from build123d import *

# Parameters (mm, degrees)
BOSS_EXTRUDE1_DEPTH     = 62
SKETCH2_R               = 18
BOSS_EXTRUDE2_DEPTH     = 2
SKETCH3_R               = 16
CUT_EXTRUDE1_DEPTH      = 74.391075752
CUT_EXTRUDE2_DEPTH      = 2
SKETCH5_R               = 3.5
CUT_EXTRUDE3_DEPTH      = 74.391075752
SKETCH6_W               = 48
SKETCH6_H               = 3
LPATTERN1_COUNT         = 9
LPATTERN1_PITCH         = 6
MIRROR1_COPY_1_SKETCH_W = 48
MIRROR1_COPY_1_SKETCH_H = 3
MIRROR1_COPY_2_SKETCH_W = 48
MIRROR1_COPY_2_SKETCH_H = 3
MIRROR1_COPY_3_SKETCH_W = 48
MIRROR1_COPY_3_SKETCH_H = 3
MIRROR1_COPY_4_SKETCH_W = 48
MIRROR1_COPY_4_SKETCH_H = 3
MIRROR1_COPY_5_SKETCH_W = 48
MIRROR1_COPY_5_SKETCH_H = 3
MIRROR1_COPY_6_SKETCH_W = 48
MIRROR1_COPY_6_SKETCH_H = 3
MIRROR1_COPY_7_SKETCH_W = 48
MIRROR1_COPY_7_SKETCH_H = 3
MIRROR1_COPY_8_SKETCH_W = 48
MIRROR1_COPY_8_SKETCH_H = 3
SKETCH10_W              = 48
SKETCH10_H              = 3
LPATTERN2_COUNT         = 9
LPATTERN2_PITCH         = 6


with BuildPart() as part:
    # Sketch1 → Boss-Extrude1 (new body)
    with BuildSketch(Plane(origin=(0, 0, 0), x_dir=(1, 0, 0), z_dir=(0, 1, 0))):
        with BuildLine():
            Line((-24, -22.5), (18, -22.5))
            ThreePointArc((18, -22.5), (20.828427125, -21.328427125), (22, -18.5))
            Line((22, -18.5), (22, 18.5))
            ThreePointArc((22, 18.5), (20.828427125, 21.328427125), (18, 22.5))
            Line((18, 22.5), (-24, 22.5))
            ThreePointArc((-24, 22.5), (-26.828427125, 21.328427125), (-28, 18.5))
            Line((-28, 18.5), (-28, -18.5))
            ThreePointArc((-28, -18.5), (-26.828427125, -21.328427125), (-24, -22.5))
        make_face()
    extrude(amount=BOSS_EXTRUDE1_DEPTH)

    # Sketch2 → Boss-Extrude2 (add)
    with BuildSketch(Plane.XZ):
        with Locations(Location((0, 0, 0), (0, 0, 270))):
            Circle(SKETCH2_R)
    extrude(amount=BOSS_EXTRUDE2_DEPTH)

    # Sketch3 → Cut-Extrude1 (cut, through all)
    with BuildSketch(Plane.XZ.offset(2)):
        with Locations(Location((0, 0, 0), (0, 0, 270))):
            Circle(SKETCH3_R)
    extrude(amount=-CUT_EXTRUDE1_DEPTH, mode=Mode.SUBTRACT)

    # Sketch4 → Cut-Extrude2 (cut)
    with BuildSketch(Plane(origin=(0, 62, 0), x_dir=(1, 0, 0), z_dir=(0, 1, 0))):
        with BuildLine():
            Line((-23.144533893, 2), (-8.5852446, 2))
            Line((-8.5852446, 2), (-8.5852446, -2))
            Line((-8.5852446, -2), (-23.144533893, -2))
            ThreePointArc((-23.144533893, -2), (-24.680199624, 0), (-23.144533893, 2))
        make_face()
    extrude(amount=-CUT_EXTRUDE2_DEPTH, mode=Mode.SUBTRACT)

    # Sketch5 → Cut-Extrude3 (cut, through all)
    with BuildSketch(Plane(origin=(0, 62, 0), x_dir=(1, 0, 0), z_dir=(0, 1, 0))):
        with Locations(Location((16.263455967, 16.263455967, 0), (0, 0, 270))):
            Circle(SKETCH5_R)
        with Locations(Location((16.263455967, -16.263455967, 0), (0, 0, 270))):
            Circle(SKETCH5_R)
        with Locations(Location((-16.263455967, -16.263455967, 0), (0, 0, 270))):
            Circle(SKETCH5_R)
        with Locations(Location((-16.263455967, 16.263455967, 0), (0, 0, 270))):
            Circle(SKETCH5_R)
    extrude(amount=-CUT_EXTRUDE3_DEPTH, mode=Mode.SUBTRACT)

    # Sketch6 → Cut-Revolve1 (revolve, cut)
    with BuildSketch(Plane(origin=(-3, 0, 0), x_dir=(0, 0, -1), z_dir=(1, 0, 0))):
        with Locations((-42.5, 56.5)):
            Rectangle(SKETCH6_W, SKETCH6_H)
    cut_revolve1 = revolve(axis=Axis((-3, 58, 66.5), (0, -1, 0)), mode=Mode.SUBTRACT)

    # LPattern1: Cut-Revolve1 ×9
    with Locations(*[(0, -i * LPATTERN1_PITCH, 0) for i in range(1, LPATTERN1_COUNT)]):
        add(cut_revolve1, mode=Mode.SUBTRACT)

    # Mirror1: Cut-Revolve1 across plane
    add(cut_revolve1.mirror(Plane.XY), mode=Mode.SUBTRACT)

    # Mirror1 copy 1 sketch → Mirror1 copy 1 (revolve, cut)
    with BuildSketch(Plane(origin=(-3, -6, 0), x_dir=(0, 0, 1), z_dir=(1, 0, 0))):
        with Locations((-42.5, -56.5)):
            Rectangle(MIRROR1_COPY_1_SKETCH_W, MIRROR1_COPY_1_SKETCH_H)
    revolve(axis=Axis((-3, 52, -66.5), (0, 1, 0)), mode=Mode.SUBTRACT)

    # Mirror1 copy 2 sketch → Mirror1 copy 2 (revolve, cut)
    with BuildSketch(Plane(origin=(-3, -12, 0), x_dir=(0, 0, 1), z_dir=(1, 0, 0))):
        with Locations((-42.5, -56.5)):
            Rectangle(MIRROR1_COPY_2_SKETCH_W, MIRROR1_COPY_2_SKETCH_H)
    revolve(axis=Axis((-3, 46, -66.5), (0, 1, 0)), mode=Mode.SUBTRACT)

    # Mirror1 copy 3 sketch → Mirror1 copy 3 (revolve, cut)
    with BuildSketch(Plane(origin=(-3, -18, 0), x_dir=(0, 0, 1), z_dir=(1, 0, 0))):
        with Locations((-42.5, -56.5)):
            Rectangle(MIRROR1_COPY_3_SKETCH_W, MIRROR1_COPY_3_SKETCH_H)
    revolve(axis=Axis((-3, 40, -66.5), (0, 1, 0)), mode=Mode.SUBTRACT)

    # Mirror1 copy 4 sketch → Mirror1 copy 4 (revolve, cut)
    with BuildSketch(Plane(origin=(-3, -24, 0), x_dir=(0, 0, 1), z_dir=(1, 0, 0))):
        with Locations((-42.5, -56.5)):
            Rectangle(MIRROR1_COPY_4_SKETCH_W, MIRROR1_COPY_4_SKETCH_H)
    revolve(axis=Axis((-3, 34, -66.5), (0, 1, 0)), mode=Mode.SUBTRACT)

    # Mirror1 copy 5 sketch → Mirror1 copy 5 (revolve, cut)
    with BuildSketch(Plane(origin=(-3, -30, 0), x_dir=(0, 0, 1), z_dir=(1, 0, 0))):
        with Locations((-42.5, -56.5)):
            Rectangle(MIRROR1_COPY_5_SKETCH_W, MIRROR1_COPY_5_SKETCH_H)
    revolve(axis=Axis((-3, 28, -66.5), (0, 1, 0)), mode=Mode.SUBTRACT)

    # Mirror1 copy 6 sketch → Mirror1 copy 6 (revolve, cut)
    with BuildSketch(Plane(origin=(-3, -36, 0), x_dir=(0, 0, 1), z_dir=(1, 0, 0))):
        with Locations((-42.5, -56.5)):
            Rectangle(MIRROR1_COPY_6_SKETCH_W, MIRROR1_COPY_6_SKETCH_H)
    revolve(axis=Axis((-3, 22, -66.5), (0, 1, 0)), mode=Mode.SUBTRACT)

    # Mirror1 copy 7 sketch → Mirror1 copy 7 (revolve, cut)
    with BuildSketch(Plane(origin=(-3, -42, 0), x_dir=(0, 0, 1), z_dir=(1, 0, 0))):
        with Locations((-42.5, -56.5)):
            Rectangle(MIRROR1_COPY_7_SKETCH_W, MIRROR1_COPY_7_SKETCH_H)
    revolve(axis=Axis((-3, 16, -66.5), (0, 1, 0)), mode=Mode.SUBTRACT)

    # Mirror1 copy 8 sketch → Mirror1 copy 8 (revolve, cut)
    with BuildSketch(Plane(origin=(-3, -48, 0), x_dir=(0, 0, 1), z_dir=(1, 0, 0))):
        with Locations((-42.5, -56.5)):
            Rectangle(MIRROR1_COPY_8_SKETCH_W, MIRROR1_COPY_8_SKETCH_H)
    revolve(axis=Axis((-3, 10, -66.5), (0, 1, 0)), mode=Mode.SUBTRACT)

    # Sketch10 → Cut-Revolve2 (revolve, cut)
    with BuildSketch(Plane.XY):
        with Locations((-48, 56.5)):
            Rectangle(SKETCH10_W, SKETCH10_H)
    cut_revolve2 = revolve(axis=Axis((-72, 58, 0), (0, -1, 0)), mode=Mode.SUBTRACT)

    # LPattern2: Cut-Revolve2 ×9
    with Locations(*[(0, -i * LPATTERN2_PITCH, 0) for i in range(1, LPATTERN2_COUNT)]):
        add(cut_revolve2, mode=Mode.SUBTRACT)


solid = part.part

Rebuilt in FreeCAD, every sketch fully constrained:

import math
import FreeCAD as App
import Part
import Sketcher
from FreeCAD import Vector
Q = App.Units.Quantity


def add_polygon(sketch, points):
    """Adds a closed chain of lines whose ends are joined by coincident constraints."""
    first, n = sketch.GeometryCount, len(points)
    for a, b in zip(points, points[1:] + points[:1]):
        sketch.addGeometry(Part.LineSegment(App.Vector(*a, 0), App.Vector(*b, 0)), False)
    for i in range(n):
        sketch.addConstraint(Sketcher.Constraint("Coincident", first + i, 2, first + (i + 1) % n, 1))

doc = App.newDocument("Part")
params = doc.addObject("Spreadsheet::Sheet", "Params")
for row, (alias, value) in enumerate([
    ("sketch1_radius", "4 mm"),
    ("sketch1_width", "42 mm"),
    ("sketch1_height", "37 mm"),
    ("pad1_length", "62 mm"),
    ("sketch2_diameter", "36 mm"),
    ("pad2_length", "2 mm"),
    ("sketch3_diameter", "32 mm"),
    ("sketch4_height", "4 mm"),
    ("pocket2_length", "2 mm"),
    ("sketch5_diameter", "7 mm"),
    ("sketch6_width", "3 mm"),
    ("sketch6_height", "48 mm"),
    ("groove_angle", "360 deg"),
    ("linearpattern_pitch", "6 mm"),
    ("sketch7_width", "3 mm"),
    ("sketch7_height", "48 mm"),
    ("groove2_angle", "360 deg"),
    ("sketch8_width", "3 mm"),
    ("sketch8_height", "48 mm"),
    ("groove3_angle", "360 deg"),
    ("sketch9_width", "3 mm"),
    ("sketch9_height", "48 mm"),
    ("groove4_angle", "360 deg"),
    ("sketch10_width", "3 mm"),
    ("sketch10_height", "48 mm"),
    ("groove5_angle", "360 deg"),
    ("sketch11_width", "3 mm"),
    ("sketch11_height", "48 mm"),
    ("groove6_angle", "360 deg"),
    ("sketch12_width", "3 mm"),
    ("sketch12_height", "48 mm"),
    ("groove7_angle", "360 deg"),
    ("sketch13_width", "3 mm"),
    ("sketch13_height", "48 mm"),
    ("groove8_angle", "360 deg"),
    ("sketch14_width", "3 mm"),
    ("sketch14_height", "48 mm"),
    ("groove9_angle", "360 deg"),
    ("sketch15_width", "48 mm"),
    ("sketch15_height", "3 mm"),
    ("groove10_angle", "360 deg"),
    ("linearpattern2_pitch", "6 mm"),
], start=1):
    params.set(f"A{row}", alias)
    params.set(f"B{row}", "=" + value)
    params.setAlias(f"B{row}", alias)

body = doc.addObject("PartDesign::Body", "Body")

sketch1 = doc.addObject("Sketcher::SketchObject", "Sketch")
body.addObject(sketch1)
sketch1.AttachmentSupport = (doc.XZ_Plane, [""])
sketch1.MapMode = "FlatFace"
sketch1.addGeometry(Part.LineSegment(Vector(-24, 22.5, 0), Vector(18, 22.5, 0)), False)
sketch1.addGeometry(Part.ArcOfCircle(Part.Circle(Vector(18, 18.5, 0), Vector(0, 0, 1), 4), math.radians(0), math.radians(90)), False)
sketch1.addGeometry(Part.LineSegment(Vector(22, 18.5, 0), Vector(22, -18.5, 0)), False)
sketch1.addGeometry(Part.ArcOfCircle(Part.Circle(Vector(18, -18.5, 0), Vector(0, 0, 1), 4), math.radians(-90), math.radians(0)), False)
sketch1.addGeometry(Part.LineSegment(Vector(18, -22.5, 0), Vector(-24, -22.5, 0)), False)
sketch1.addGeometry(Part.ArcOfCircle(Part.Circle(Vector(-24, -18.5, 0), Vector(0, 0, 1), 4), math.radians(180), math.radians(270)), False)
sketch1.addGeometry(Part.LineSegment(Vector(-28, -18.5, 0), Vector(-28, 18.5, 0)), False)
sketch1.addGeometry(Part.ArcOfCircle(Part.Circle(Vector(-24, 18.5, 0), Vector(0, 0, 1), 4), math.radians(90), math.radians(180)), False)
sketch1.addConstraint(Sketcher.Constraint("Tangent", 0, 2, 1, 2))
sketch1.addConstraint(Sketcher.Constraint("Tangent", 1, 1, 2, 1))
sketch1.addConstraint(Sketcher.Constraint("Tangent", 2, 2, 3, 2))
sketch1.addConstraint(Sketcher.Constraint("Tangent", 3, 1, 4, 1))
sketch1.addConstraint(Sketcher.Constraint("Tangent", 4, 2, 5, 2))
sketch1.addConstraint(Sketcher.Constraint("Tangent", 5, 1, 6, 1))
sketch1.addConstraint(Sketcher.Constraint("Tangent", 6, 2, 7, 2))
sketch1.addConstraint(Sketcher.Constraint("Tangent", 7, 1, 0, 1))
sketch1.addConstraint(Sketcher.Constraint("Horizontal", 0))
sketch1.addConstraint(Sketcher.Constraint("Vertical", 2))
sketch1.addConstraint(Sketcher.Constraint("Horizontal", 4))
sketch1.addConstraint(Sketcher.Constraint("Vertical", 6))
sketch1.addConstraint(Sketcher.Constraint("Equal", 1, 3))
sketch1.addConstraint(Sketcher.Constraint("Equal", 3, 5))
sketch1.addConstraint(Sketcher.Constraint("Equal", 5, 7))
sketch1.addConstraint(Sketcher.Constraint("Radius", 1, Q("4 mm")))
sketch1.addConstraint(Sketcher.Constraint("DistanceX", 0, 1, 0, 2, Q("42 mm")))
sketch1.addConstraint(Sketcher.Constraint("DistanceY", 2, 2, 2, 1, Q("37 mm")))
sketch1.addConstraint(Sketcher.Constraint("DistanceX", -1, 1, 1, 3, Q("18 mm")))
sketch1.addConstraint(Sketcher.Constraint("DistanceY", -1, 1, 1, 3, Q("18.5 mm")))
sketch1.setExpression("Constraints[15]", "Params.sketch1_radius")
sketch1.setExpression("Constraints[16]", "Params.sketch1_width")
sketch1.setExpression("Constraints[17]", "Params.sketch1_height")
pad1 = doc.addObject("PartDesign::Pad", "Pad")
body.addObject(pad1)
pad1.Profile = sketch1
pad1.setExpression("Length", "Params.pad1_length")
pad1.Reversed = True

sketch2 = doc.addObject("Sketcher::SketchObject", "Sketch001")
body.addObject(sketch2)
sketch2.AttachmentSupport = (doc.XZ_Plane, [""])
sketch2.MapMode = "FlatFace"
sketch2.addGeometry(Part.Circle(Vector(0, 0, 0), Vector(0, 0, 1), 18), False)
sketch2.addConstraint(Sketcher.Constraint("Coincident", 0, 3, -1, 1))
sketch2.addConstraint(Sketcher.Constraint("Diameter", 0, Q("36 mm")))
sketch2.setExpression("Constraints[1]", "Params.sketch2_diameter")
pad2 = doc.addObject("PartDesign::Pad", "Pad001")
body.addObject(pad2)
pad2.Profile = sketch2
pad2.setExpression("Length", "Params.pad2_length")

sketch3 = doc.addObject("Sketcher::SketchObject", "Sketch002")
body.addObject(sketch3)
sketch3.AttachmentSupport = (doc.XZ_Plane, [""])
sketch3.MapMode = "FlatFace"
sketch3.AttachmentOffset = App.Placement(Vector(0, 0, 2), App.Rotation())
sketch3.addGeometry(Part.Circle(Vector(0, 0, 0), Vector(0, 0, 1), 16), False)
sketch3.addConstraint(Sketcher.Constraint("Coincident", 0, 3, -1, 1))
sketch3.addConstraint(Sketcher.Constraint("Diameter", 0, Q("32 mm")))
sketch3.setExpression("Constraints[1]", "Params.sketch3_diameter")
pocket1 = doc.addObject("PartDesign::Pocket", "Pocket")
body.addObject(pocket1)
pocket1.Profile = sketch3
pocket1.Type = "ThroughAll"

sketch4 = doc.addObject("Sketcher::SketchObject", "Sketch003")
body.addObject(sketch4)
sketch4.AttachmentSupport = (doc.XZ_Plane, [""])
sketch4.MapMode = "FlatFace"
sketch4.AttachmentOffset = App.Placement(Vector(0, 0, -62), App.Rotation())
sketch4.addGeometry(Part.LineSegment(Vector(-8.585245, -2, 0), Vector(-23.144534, -2, 0)), False)
sketch4.addGeometry(Part.ArcOfCircle(Part.Circle(Vector(-22.61, 0, 0), Vector(0, 0, 1), 2.0702), math.radians(104.963522), math.radians(255.036478)), False)
sketch4.addGeometry(Part.LineSegment(Vector(-23.144534, 2, 0), Vector(-8.585245, 2, 0)), False)
sketch4.addGeometry(Part.LineSegment(Vector(-8.585245, 2, 0), Vector(-8.585245, -2, 0)), False)
sketch4.addConstraint(Sketcher.Constraint("Coincident", 0, 2, 1, 2))
sketch4.addConstraint(Sketcher.Constraint("Coincident", 1, 1, 2, 1))
sketch4.addConstraint(Sketcher.Constraint("Coincident", 2, 2, 3, 1))
sketch4.addConstraint(Sketcher.Constraint("Coincident", 3, 2, 0, 1))
sketch4.addConstraint(Sketcher.Constraint("Horizontal", 0))
sketch4.addConstraint(Sketcher.Constraint("Horizontal", 2))
sketch4.addConstraint(Sketcher.Constraint("Vertical", 3))
sketch4.addConstraint(Sketcher.Constraint("Symmetric", 0, 2, 1, 1, -1))
sketch4.addConstraint(Sketcher.Constraint("DistanceY", 3, 2, 3, 1, Q("4 mm")))
sketch4.addConstraint(Sketcher.Constraint("Radius", 1, Q("2.0702 mm")))
sketch4.addConstraint(Sketcher.Constraint("DistanceX", 1, 3, -1, 1, Q("22.61 mm")))
sketch4.addConstraint(Sketcher.Constraint("DistanceX", 0, 2, 0, 1, Q("14.559289 mm")))
sketch4.setExpression("Constraints[8]", "Params.sketch4_height")
pocket2 = doc.addObject("PartDesign::Pocket", "Pocket001")
body.addObject(pocket2)
pocket2.Profile = sketch4
pocket2.setExpression("Length", "Params.pocket2_length")
pocket2.Reversed = True

sketch5 = doc.addObject("Sketcher::SketchObject", "Sketch004")
body.addObject(sketch5)
sketch5.AttachmentSupport = (doc.XZ_Plane, [""])
sketch5.MapMode = "FlatFace"
sketch5.AttachmentOffset = App.Placement(Vector(0, 0, -62), App.Rotation())
sketch5.addGeometry(Part.Circle(Vector(16.263456, -16.263456, 0), Vector(0, 0, 1), 3.5), False)
sketch5.addGeometry(Part.Circle(Vector(16.263456, 16.263456, 0), Vector(0, 0, 1), 3.5), False)
sketch5.addGeometry(Part.Circle(Vector(-16.263456, 16.263456, 0), Vector(0, 0, 1), 3.5), False)
sketch5.addGeometry(Part.Circle(Vector(-16.263456, -16.263456, 0), Vector(0, 0, 1), 3.5), False)
sketch5.addConstraint(Sketcher.Constraint("Equal", 0, 1))
sketch5.addConstraint(Sketcher.Constraint("Equal", 1, 2))
sketch5.addConstraint(Sketcher.Constraint("Equal", 2, 3))
sketch5.addConstraint(Sketcher.Constraint("Symmetric", 0, 3, 2, 3, -1, 1))
sketch5.addConstraint(Sketcher.Constraint("Symmetric", 1, 3, 3, 3, -1, 1))
sketch5.addConstraint(Sketcher.Constraint("Symmetric", 1, 3, 2, 3, -2))
sketch5.addConstraint(Sketcher.Constraint("Diameter", 0, Q("7 mm")))
sketch5.addConstraint(Sketcher.Constraint("DistanceY", 0, 3, 1, 3, Q("32.526912 mm")))
sketch5.addConstraint(Sketcher.Constraint("DistanceX", 2, 3, 1, 3, Q("32.526912 mm")))
sketch5.setExpression("Constraints[6]", "Params.sketch5_diameter")
pocket3 = doc.addObject("PartDesign::Pocket", "Pocket002")
body.addObject(pocket3)
pocket3.Profile = sketch5
pocket3.Type = "ThroughAll"
pocket3.Reversed = True

sketch6 = doc.addObject("Sketcher::SketchObject", "Sketch005")
body.addObject(sketch6)
sketch6.AttachmentSupport = (doc.YZ_Plane, [""])
sketch6.MapMode = "FlatFace"
sketch6.AttachmentOffset = App.Placement(Vector(0, 0, -3), App.Rotation())
add_polygon(sketch6, [(58, 66.5), (55, 66.5), (55, 18.5), (58, 18.5)])
sketch6.addGeometry(Part.LineSegment(Vector(58, 66.5, 0), Vector(55, 66.5, 0)), True)
sketch6.addConstraint(Sketcher.Constraint("Horizontal", 0))
sketch6.addConstraint(Sketcher.Constraint("Vertical", 1))
sketch6.addConstraint(Sketcher.Constraint("Horizontal", 2))
sketch6.addConstraint(Sketcher.Constraint("Vertical", 3))
sketch6.addConstraint(Sketcher.Constraint("Horizontal", 4))
sketch6.addConstraint(Sketcher.Constraint("Coincident", 4, 1, 3, 2))
sketch6.addConstraint(Sketcher.Constraint("Vertical", 1, 2, 4, 2))
sketch6.addConstraint(Sketcher.Constraint("DistanceX", 0, 2, 0, 1, Q("3 mm")))
sketch6.addConstraint(Sketcher.Constraint("DistanceY", 1, 2, 1, 1, Q("48 mm")))
sketch6.addConstraint(Sketcher.Constraint("DistanceX", -1, 1, 0, 2, Q("55 mm")))
sketch6.addConstraint(Sketcher.Constraint("DistanceY", -1, 1, 0, 2, Q("66.5 mm")))
sketch6.setExpression("Constraints[11]", "Params.sketch6_width")
sketch6.setExpression("Constraints[12]", "Params.sketch6_height")
groove = doc.addObject("PartDesign::Groove", "Groove")
body.addObject(groove)
groove.Profile = sketch6
groove.ReferenceAxis = (sketch6, ["Axis0"])
groove.setExpression("Angle", "Params.groove_angle")
doc.recompute()

linearpattern = doc.addObject("PartDesign::LinearPattern", "LinearPattern")
body.addObject(linearpattern)
linearpattern.Originals = [groove]
linearpattern.Direction = (doc.Y_Axis, [""])
linearpattern.Mode = "offset"
linearpattern.setExpression("Offset", "Params.linearpattern_pitch")
linearpattern.Occurrences = 9
linearpattern.Reversed = True
body.Tip = linearpattern
doc.recompute()

mirrored = doc.addObject("PartDesign::Mirrored", "Mirrored")
body.addObject(mirrored)
mirrored.Originals = [groove]
mirrored.MirrorPlane = (doc.XY_Plane, [""])
body.Tip = mirrored

sketch7 = doc.addObject("Sketcher::SketchObject", "Sketch006")
body.addObject(sketch7)
sketch7.AttachmentSupport = (doc.YZ_Plane, [""])
sketch7.MapMode = "FlatFace"
sketch7.AttachmentOffset = App.Placement(Vector(0, 0, -3), App.Rotation())
add_polygon(sketch7, [(49, -66.5), (52, -66.5), (52, -18.5), (49, -18.5)])
sketch7.addGeometry(Part.LineSegment(Vector(49, -66.5, 0), Vector(52, -66.5, 0)), True)
sketch7.addConstraint(Sketcher.Constraint("Horizontal", 0))
sketch7.addConstraint(Sketcher.Constraint("Vertical", 1))
sketch7.addConstraint(Sketcher.Constraint("Horizontal", 2))
sketch7.addConstraint(Sketcher.Constraint("Vertical", 3))
sketch7.addConstraint(Sketcher.Constraint("Horizontal", 4))
sketch7.addConstraint(Sketcher.Constraint("Coincident", 4, 1, 3, 2))
sketch7.addConstraint(Sketcher.Constraint("Vertical", 1, 2, 4, 2))
sketch7.addConstraint(Sketcher.Constraint("DistanceX", 0, 1, 0, 2, Q("3 mm")))
sketch7.addConstraint(Sketcher.Constraint("DistanceY", 1, 1, 1, 2, Q("48 mm")))
sketch7.addConstraint(Sketcher.Constraint("DistanceX", -1, 1, 0, 2, Q("52 mm")))
sketch7.addConstraint(Sketcher.Constraint("DistanceY", 0, 2, -1, 1, Q("66.5 mm")))
sketch7.setExpression("Constraints[11]", "Params.sketch7_width")
sketch7.setExpression("Constraints[12]", "Params.sketch7_height")
groove2 = doc.addObject("PartDesign::Groove", "Groove001")
body.addObject(groove2)
groove2.Profile = sketch7
groove2.ReferenceAxis = (sketch7, ["Axis0"])
groove2.setExpression("Angle", "Params.groove2_angle")

sketch8 = doc.addObject("Sketcher::SketchObject", "Sketch007")
body.addObject(sketch8)
sketch8.AttachmentSupport = (doc.YZ_Plane, [""])
sketch8.MapMode = "FlatFace"
sketch8.AttachmentOffset = App.Placement(Vector(0, 0, -3), App.Rotation())
add_polygon(sketch8, [(43, -66.5), (46, -66.5), (46, -18.5), (43, -18.5)])
sketch8.addGeometry(Part.LineSegment(Vector(43, -66.5, 0), Vector(46, -66.5, 0)), True)
sketch8.addConstraint(Sketcher.Constraint("Horizontal", 0))
sketch8.addConstraint(Sketcher.Constraint("Vertical", 1))
sketch8.addConstraint(Sketcher.Constraint("Horizontal", 2))
sketch8.addConstraint(Sketcher.Constraint("Vertical", 3))
sketch8.addConstraint(Sketcher.Constraint("Horizontal", 4))
sketch8.addConstraint(Sketcher.Constraint("Coincident", 4, 1, 3, 2))
sketch8.addConstraint(Sketcher.Constraint("Vertical", 1, 2, 4, 2))
sketch8.addConstraint(Sketcher.Constraint("DistanceX", 0, 1, 0, 2, Q("3 mm")))
sketch8.addConstraint(Sketcher.Constraint("DistanceY", 1, 1, 1, 2, Q("48 mm")))
sketch8.addConstraint(Sketcher.Constraint("DistanceX", -1, 1, 0, 2, Q("46 mm")))
sketch8.addConstraint(Sketcher.Constraint("DistanceY", 0, 2, -1, 1, Q("66.5 mm")))
sketch8.setExpression("Constraints[11]", "Params.sketch8_width")
sketch8.setExpression("Constraints[12]", "Params.sketch8_height")
groove3 = doc.addObject("PartDesign::Groove", "Groove002")
body.addObject(groove3)
groove3.Profile = sketch8
groove3.ReferenceAxis = (sketch8, ["Axis0"])
groove3.setExpression("Angle", "Params.groove3_angle")

sketch9 = doc.addObject("Sketcher::SketchObject", "Sketch008")
body.addObject(sketch9)
sketch9.AttachmentSupport = (doc.YZ_Plane, [""])
sketch9.MapMode = "FlatFace"
sketch9.AttachmentOffset = App.Placement(Vector(0, 0, -3), App.Rotation())
add_polygon(sketch9, [(37, -66.5), (40, -66.5), (40, -18.5), (37, -18.5)])
sketch9.addGeometry(Part.LineSegment(Vector(37, -66.5, 0), Vector(40, -66.5, 0)), True)
sketch9.addConstraint(Sketcher.Constraint("Horizontal", 0))
sketch9.addConstraint(Sketcher.Constraint("Vertical", 1))
sketch9.addConstraint(Sketcher.Constraint("Horizontal", 2))
sketch9.addConstraint(Sketcher.Constraint("Vertical", 3))
sketch9.addConstraint(Sketcher.Constraint("Horizontal", 4))
sketch9.addConstraint(Sketcher.Constraint("Coincident", 4, 1, 3, 2))
sketch9.addConstraint(Sketcher.Constraint("Vertical", 1, 2, 4, 2))
sketch9.addConstraint(Sketcher.Constraint("DistanceX", 0, 1, 0, 2, Q("3 mm")))
sketch9.addConstraint(Sketcher.Constraint("DistanceY", 1, 1, 1, 2, Q("48 mm")))
sketch9.addConstraint(Sketcher.Constraint("DistanceX", -1, 1, 0, 2, Q("40 mm")))
sketch9.addConstraint(Sketcher.Constraint("DistanceY", 0, 2, -1, 1, Q("66.5 mm")))
sketch9.setExpression("Constraints[11]", "Params.sketch9_width")
sketch9.setExpression("Constraints[12]", "Params.sketch9_height")
groove4 = doc.addObject("PartDesign::Groove", "Groove003")
body.addObject(groove4)
groove4.Profile = sketch9
groove4.ReferenceAxis = (sketch9, ["Axis0"])
groove4.setExpression("Angle", "Params.groove4_angle")

sketch10 = doc.addObject("Sketcher::SketchObject", "Sketch009")
body.addObject(sketch10)
sketch10.AttachmentSupport = (doc.YZ_Plane, [""])
sketch10.MapMode = "FlatFace"
sketch10.AttachmentOffset = App.Placement(Vector(0, 0, -3), App.Rotation())
add_polygon(sketch10, [(31, -66.5), (34, -66.5), (34, -18.5), (31, -18.5)])
sketch10.addGeometry(Part.LineSegment(Vector(31, -66.5, 0), Vector(34, -66.5, 0)), True)
sketch10.addConstraint(Sketcher.Constraint("Horizontal", 0))
sketch10.addConstraint(Sketcher.Constraint("Vertical", 1))
sketch10.addConstraint(Sketcher.Constraint("Horizontal", 2))
sketch10.addConstraint(Sketcher.Constraint("Vertical", 3))
sketch10.addConstraint(Sketcher.Constraint("Horizontal", 4))
sketch10.addConstraint(Sketcher.Constraint("Coincident", 4, 1, 3, 2))
sketch10.addConstraint(Sketcher.Constraint("Vertical", 1, 2, 4, 2))
sketch10.addConstraint(Sketcher.Constraint("DistanceX", 0, 1, 0, 2, Q("3 mm")))
sketch10.addConstraint(Sketcher.Constraint("DistanceY", 1, 1, 1, 2, Q("48 mm")))
sketch10.addConstraint(Sketcher.Constraint("DistanceX", -1, 1, 0, 2, Q("34 mm")))
sketch10.addConstraint(Sketcher.Constraint("DistanceY", 0, 2, -1, 1, Q("66.5 mm")))
sketch10.setExpression("Constraints[11]", "Params.sketch10_width")
sketch10.setExpression("Constraints[12]", "Params.sketch10_height")
groove5 = doc.addObject("PartDesign::Groove", "Groove004")
body.addObject(groove5)
groove5.Profile = sketch10
groove5.ReferenceAxis = (sketch10, ["Axis0"])
groove5.setExpression("Angle", "Params.groove5_angle")

sketch11 = doc.addObject("Sketcher::SketchObject", "Sketch010")
body.addObject(sketch11)
sketch11.AttachmentSupport = (doc.YZ_Plane, [""])
sketch11.MapMode = "FlatFace"
sketch11.AttachmentOffset = App.Placement(Vector(0, 0, -3), App.Rotation())
add_polygon(sketch11, [(25, -66.5), (28, -66.5), (28, -18.5), (25, -18.5)])
sketch11.addGeometry(Part.LineSegment(Vector(25, -66.5, 0), Vector(28, -66.5, 0)), True)
sketch11.addConstraint(Sketcher.Constraint("Horizontal", 0))
sketch11.addConstraint(Sketcher.Constraint("Vertical", 1))
sketch11.addConstraint(Sketcher.Constraint("Horizontal", 2))
sketch11.addConstraint(Sketcher.Constraint("Vertical", 3))
sketch11.addConstraint(Sketcher.Constraint("Horizontal", 4))
sketch11.addConstraint(Sketcher.Constraint("Coincident", 4, 1, 3, 2))
sketch11.addConstraint(Sketcher.Constraint("Vertical", 1, 2, 4, 2))
sketch11.addConstraint(Sketcher.Constraint("DistanceX", 0, 1, 0, 2, Q("3 mm")))
sketch11.addConstraint(Sketcher.Constraint("DistanceY", 1, 1, 1, 2, Q("48 mm")))
sketch11.addConstraint(Sketcher.Constraint("DistanceX", -1, 1, 0, 2, Q("28 mm")))
sketch11.addConstraint(Sketcher.Constraint("DistanceY", 0, 2, -1, 1, Q("66.5 mm")))
sketch11.setExpression("Constraints[11]", "Params.sketch11_width")
sketch11.setExpression("Constraints[12]", "Params.sketch11_height")
groove6 = doc.addObject("PartDesign::Groove", "Groove005")
body.addObject(groove6)
groove6.Profile = sketch11
groove6.ReferenceAxis = (sketch11, ["Axis0"])
groove6.setExpression("Angle", "Params.groove6_angle")

sketch12 = doc.addObject("Sketcher::SketchObject", "Sketch011")
body.addObject(sketch12)
sketch12.AttachmentSupport = (doc.YZ_Plane, [""])
sketch12.MapMode = "FlatFace"
sketch12.AttachmentOffset = App.Placement(Vector(0, 0, -3), App.Rotation())
add_polygon(sketch12, [(19, -66.5), (22, -66.5), (22, -18.5), (19, -18.5)])
sketch12.addGeometry(Part.LineSegment(Vector(19, -66.5, 0), Vector(22, -66.5, 0)), True)
sketch12.addConstraint(Sketcher.Constraint("Horizontal", 0))
sketch12.addConstraint(Sketcher.Constraint("Vertical", 1))
sketch12.addConstraint(Sketcher.Constraint("Horizontal", 2))
sketch12.addConstraint(Sketcher.Constraint("Vertical", 3))
sketch12.addConstraint(Sketcher.Constraint("Horizontal", 4))
sketch12.addConstraint(Sketcher.Constraint("Coincident", 4, 1, 3, 2))
sketch12.addConstraint(Sketcher.Constraint("Vertical", 1, 2, 4, 2))
sketch12.addConstraint(Sketcher.Constraint("DistanceX", 0, 1, 0, 2, Q("3 mm")))
sketch12.addConstraint(Sketcher.Constraint("DistanceY", 1, 1, 1, 2, Q("48 mm")))
sketch12.addConstraint(Sketcher.Constraint("DistanceX", -1, 1, 0, 2, Q("22 mm")))
sketch12.addConstraint(Sketcher.Constraint("DistanceY", 0, 2, -1, 1, Q("66.5 mm")))
sketch12.setExpression("Constraints[11]", "Params.sketch12_width")
sketch12.setExpression("Constraints[12]", "Params.sketch12_height")
groove7 = doc.addObject("PartDesign::Groove", "Groove006")
body.addObject(groove7)
groove7.Profile = sketch12
groove7.ReferenceAxis = (sketch12, ["Axis0"])
groove7.setExpression("Angle", "Params.groove7_angle")

sketch13 = doc.addObject("Sketcher::SketchObject", "Sketch012")
body.addObject(sketch13)
sketch13.AttachmentSupport = (doc.YZ_Plane, [""])
sketch13.MapMode = "FlatFace"
sketch13.AttachmentOffset = App.Placement(Vector(0, 0, -3), App.Rotation())
add_polygon(sketch13, [(13, -66.5), (16, -66.5), (16, -18.5), (13, -18.5)])
sketch13.addGeometry(Part.LineSegment(Vector(13, -66.5, 0), Vector(16, -66.5, 0)), True)
sketch13.addConstraint(Sketcher.Constraint("Horizontal", 0))
sketch13.addConstraint(Sketcher.Constraint("Vertical", 1))
sketch13.addConstraint(Sketcher.Constraint("Horizontal", 2))
sketch13.addConstraint(Sketcher.Constraint("Vertical", 3))
sketch13.addConstraint(Sketcher.Constraint("Horizontal", 4))
sketch13.addConstraint(Sketcher.Constraint("Coincident", 4, 1, 3, 2))
sketch13.addConstraint(Sketcher.Constraint("Vertical", 1, 2, 4, 2))
sketch13.addConstraint(Sketcher.Constraint("DistanceX", 0, 1, 0, 2, Q("3 mm")))
sketch13.addConstraint(Sketcher.Constraint("DistanceY", 1, 1, 1, 2, Q("48 mm")))
sketch13.addConstraint(Sketcher.Constraint("DistanceX", -1, 1, 0, 2, Q("16 mm")))
sketch13.addConstraint(Sketcher.Constraint("DistanceY", 0, 2, -1, 1, Q("66.5 mm")))
sketch13.setExpression("Constraints[11]", "Params.sketch13_width")
sketch13.setExpression("Constraints[12]", "Params.sketch13_height")
groove8 = doc.addObject("PartDesign::Groove", "Groove007")
body.addObject(groove8)
groove8.Profile = sketch13
groove8.ReferenceAxis = (sketch13, ["Axis0"])
groove8.setExpression("Angle", "Params.groove8_angle")

sketch14 = doc.addObject("Sketcher::SketchObject", "Sketch013")
body.addObject(sketch14)
sketch14.AttachmentSupport = (doc.YZ_Plane, [""])
sketch14.MapMode = "FlatFace"
sketch14.AttachmentOffset = App.Placement(Vector(0, 0, -3), App.Rotation())
add_polygon(sketch14, [(7, -66.5), (10, -66.5), (10, -18.5), (7, -18.5)])
sketch14.addGeometry(Part.LineSegment(Vector(7, -66.5, 0), Vector(10, -66.5, 0)), True)
sketch14.addConstraint(Sketcher.Constraint("Horizontal", 0))
sketch14.addConstraint(Sketcher.Constraint("Vertical", 1))
sketch14.addConstraint(Sketcher.Constraint("Horizontal", 2))
sketch14.addConstraint(Sketcher.Constraint("Vertical", 3))
sketch14.addConstraint(Sketcher.Constraint("Horizontal", 4))
sketch14.addConstraint(Sketcher.Constraint("Coincident", 4, 1, 3, 2))
sketch14.addConstraint(Sketcher.Constraint("Vertical", 1, 2, 4, 2))
sketch14.addConstraint(Sketcher.Constraint("DistanceX", 0, 1, 0, 2, Q("3 mm")))
sketch14.addConstraint(Sketcher.Constraint("DistanceY", 1, 1, 1, 2, Q("48 mm")))
sketch14.addConstraint(Sketcher.Constraint("DistanceX", -1, 1, 0, 2, Q("10 mm")))
sketch14.addConstraint(Sketcher.Constraint("DistanceY", 0, 2, -1, 1, Q("66.5 mm")))
sketch14.setExpression("Constraints[11]", "Params.sketch14_width")
sketch14.setExpression("Constraints[12]", "Params.sketch14_height")
groove9 = doc.addObject("PartDesign::Groove", "Groove008")
body.addObject(groove9)
groove9.Profile = sketch14
groove9.ReferenceAxis = (sketch14, ["Axis0"])
groove9.setExpression("Angle", "Params.groove9_angle")

sketch15 = doc.addObject("Sketcher::SketchObject", "Sketch014")
body.addObject(sketch15)
sketch15.AttachmentSupport = (doc.XY_Plane, [""])
sketch15.MapMode = "FlatFace"
add_polygon(sketch15, [(-72, 58), (-72, 55), (-24, 55), (-24, 58)])
sketch15.addGeometry(Part.LineSegment(Vector(-72, 58, 0), Vector(-72, 55, 0)), True)
sketch15.addConstraint(Sketcher.Constraint("Vertical", 0))
sketch15.addConstraint(Sketcher.Constraint("Horizontal", 1))
sketch15.addConstraint(Sketcher.Constraint("Vertical", 2))
sketch15.addConstraint(Sketcher.Constraint("Horizontal", 3))
sketch15.addConstraint(Sketcher.Constraint("Vertical", 4))
sketch15.addConstraint(Sketcher.Constraint("Coincident", 4, 1, 3, 2))
sketch15.addConstraint(Sketcher.Constraint("Horizontal", 1, 2, 4, 2))
sketch15.addConstraint(Sketcher.Constraint("DistanceX", 1, 1, 1, 2, Q("48 mm")))
sketch15.addConstraint(Sketcher.Constraint("DistanceY", 0, 2, 0, 1, Q("3 mm")))
sketch15.addConstraint(Sketcher.Constraint("DistanceX", 0, 2, -1, 1, Q("72 mm")))
sketch15.addConstraint(Sketcher.Constraint("DistanceY", -1, 1, 0, 2, Q("55 mm")))
sketch15.setExpression("Constraints[11]", "Params.sketch15_width")
sketch15.setExpression("Constraints[12]", "Params.sketch15_height")
groove10 = doc.addObject("PartDesign::Groove", "Groove009")
body.addObject(groove10)
groove10.Profile = sketch15
groove10.ReferenceAxis = (sketch15, ["Axis0"])
groove10.setExpression("Angle", "Params.groove10_angle")
doc.recompute()

linearpattern2 = doc.addObject("PartDesign::LinearPattern", "LinearPattern001")
body.addObject(linearpattern2)
linearpattern2.Originals = [groove10]
linearpattern2.Direction = (doc.Y_Axis, [""])
linearpattern2.Mode = "offset"
linearpattern2.setExpression("Offset", "Params.linearpattern2_pitch")
linearpattern2.Occurrences = 9
linearpattern2.Reversed = True
body.Tip = linearpattern2

doc.recompute()
